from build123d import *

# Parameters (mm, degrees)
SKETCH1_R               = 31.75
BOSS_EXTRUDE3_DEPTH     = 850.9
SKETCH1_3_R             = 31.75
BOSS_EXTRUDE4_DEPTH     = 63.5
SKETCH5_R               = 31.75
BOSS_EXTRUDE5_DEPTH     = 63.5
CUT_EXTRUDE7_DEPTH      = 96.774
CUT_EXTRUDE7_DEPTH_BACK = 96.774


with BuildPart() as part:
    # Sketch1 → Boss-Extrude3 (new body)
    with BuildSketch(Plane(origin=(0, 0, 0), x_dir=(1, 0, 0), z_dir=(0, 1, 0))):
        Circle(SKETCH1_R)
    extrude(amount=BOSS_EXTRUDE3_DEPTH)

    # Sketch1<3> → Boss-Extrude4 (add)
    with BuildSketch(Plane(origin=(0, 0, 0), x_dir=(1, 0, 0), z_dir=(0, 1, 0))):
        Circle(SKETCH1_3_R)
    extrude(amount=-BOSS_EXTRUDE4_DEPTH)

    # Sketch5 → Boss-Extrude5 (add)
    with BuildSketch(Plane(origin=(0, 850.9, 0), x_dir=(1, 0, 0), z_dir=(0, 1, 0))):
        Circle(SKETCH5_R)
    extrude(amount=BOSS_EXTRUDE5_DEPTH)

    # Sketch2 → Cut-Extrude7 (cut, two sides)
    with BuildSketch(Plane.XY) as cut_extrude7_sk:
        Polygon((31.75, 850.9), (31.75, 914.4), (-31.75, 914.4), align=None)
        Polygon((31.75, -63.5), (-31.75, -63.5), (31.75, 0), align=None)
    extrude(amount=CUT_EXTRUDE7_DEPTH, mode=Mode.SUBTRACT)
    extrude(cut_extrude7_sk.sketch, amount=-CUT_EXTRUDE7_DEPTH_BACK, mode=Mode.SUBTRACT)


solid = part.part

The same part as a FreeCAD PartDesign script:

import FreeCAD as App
import Part
import Sketcher
Q = App.Units.Quantity

doc = App.newDocument("Part")
body = doc.addObject("PartDesign::Body", "Body")

sketch1 = body.newObject("Sketcher::SketchObject", "Sketch")
sketch1.AttachmentSupport = (doc.getObject("XZ_Plane"), [""])
sketch1.MapMode = "FlatFace"
sketch1.addGeometry(Part.Circle(App.Vector(0, 0, 0), App.Vector(0, 0, 1), 32), False)
sketch1.addConstraint(Sketcher.Constraint("Coincident", 0, 3, -1, 1))
sketch1.addConstraint(Sketcher.Constraint("Diameter", 0, Q("2.5 in")))
pad1 = body.newObject("PartDesign::Pad", "Pad")
pad1.Profile = sketch1
pad1.Length = Q("33.5 in")
pad1.Reversed = True

sketch2 = body.newObject("Sketcher::SketchObject", "Sketch001")
sketch2.AttachmentSupport = (doc.getObject("XZ_Plane"), [""])
sketch2.MapMode = "FlatFace"
sketch2.addGeometry(Part.Circle(App.Vector(0, 0, 0), App.Vector(0, 0, 1), 32), False)
sketch2.addConstraint(Sketcher.Constraint("Coincident", 0, 3, -1, 1))
sketch2.addConstraint(Sketcher.Constraint("Diameter", 0, Q("2.5 in")))
pad2 = body.newObject("PartDesign::Pad", "Pad001")
pad2.Profile = sketch2
pad2.Length = Q("2.5 in")

sketch3 = body.newObject("Sketcher::SketchObject", "Sketch002")
sketch3.AttachmentSupport = (doc.getObject("XZ_Plane"), [""])
sketch3.MapMode = "FlatFace"
sketch3.AttachmentOffset = App.Placement(App.Vector(0, 0, -33.5 * 25.4), App.Rotation())
sketch3.addGeometry(Part.Circle(App.Vector(0, 0, 0), App.Vector(0, 0, 1), 32), False)
sketch3.addConstraint(Sketcher.Constraint("Coincident", 0, 3, -1, 1))
sketch3.addConstraint(Sketcher.Constraint("Diameter", 0, Q("2.5 in")))
pad3 = body.newObject("PartDesign::Pad", "Pad002")
pad3.Profile = sketch3
pad3.Length = Q("2.5 in")
pad3.Reversed = True

sketch4 = body.newObject("Sketcher::SketchObject", "Sketch003")
sketch4.AttachmentSupport = (doc.getObject("XY_Plane"), [""])
sketch4.MapMode = "FlatFace"
sketch4.addGeometry(Part.LineSegment(App.Vector(32, 851, 0), App.Vector(32, 914, 0)), False)
sketch4.addGeometry(Part.LineSegment(App.Vector(32, 914, 0), App.Vector(-32, 914, 0)), False)
sketch4.addGeometry(Part.LineSegment(App.Vector(-32, 914, 0), App.Vector(32, 851, 0)), False)
sketch4.addGeometry(Part.LineSegment(App.Vector(-32, -64, 0), App.Vector(32, -64, 0)), False)
sketch4.addGeometry(Part.LineSegment(App.Vector(32, -64, 0), App.Vector(32, 0, 0)), False)
sketch4.addGeometry(Part.LineSegment(App.Vector(32, 0, 0), App.Vector(-32, -64, 0)), False)
sketch4.addConstraint(Sketcher.Constraint("Coincident", 0, 2, 1, 1))
sketch4.addConstraint(Sketcher.Constraint("Coincident", 1, 2, 2, 1))
sketch4.addConstraint(Sketcher.Constraint("Coincident", 2, 2, 0, 1))
sketch4.addConstraint(Sketcher.Constraint("Coincident", 3, 2, 4, 1))
sketch4.addConstraint(Sketcher.Constraint("Coincident", 4, 2, 5, 1))
sketch4.addConstraint(Sketcher.Constraint("Coincident", 5, 2, 3, 1))
sketch4.addConstraint(Sketcher.Constraint("Vertical", 0))
sketch4.addConstraint(Sketcher.Constraint("Horizontal", 1))
sketch4.addConstraint(Sketcher.Constraint("Horizontal", 3))
sketch4.addConstraint(Sketcher.Constraint("Vertical", 4))
sketch4.addConstraint(Sketcher.Constraint("PointOnObject", 4, 2, -1))
sketch4.addConstraint(Sketcher.Constraint("Perpendicular", 2, 5))
sketch4.addConstraint(Sketcher.Constraint("Vertical", 2, 2, 3, 2))
sketch4.addConstraint(Sketcher.Constraint("Vertical", 1, 2, 5, 2))
sketch4.addConstraint(Sketcher.Constraint("Equal", 3, 0))
sketch4.addConstraint(Sketcher.Constraint("DistanceX", 1, 2, 1, 1, Q("2.5 in")))
sketch4.addConstraint(Sketcher.Constraint("DistanceY", -1, 1, 0, 2, Q("36 in")))
sketch4.addConstraint(Sketcher.Constraint("DistanceX", -1, 1, 0, 2, Q("1.25 in")))
pocket1 = body.newObject("PartDesign::Pocket", "Pocket")
pocket1.Profile = sketch4
pocket1.Type = "ThroughAll"
pocket1.Midplane = True

doc.recompute()
